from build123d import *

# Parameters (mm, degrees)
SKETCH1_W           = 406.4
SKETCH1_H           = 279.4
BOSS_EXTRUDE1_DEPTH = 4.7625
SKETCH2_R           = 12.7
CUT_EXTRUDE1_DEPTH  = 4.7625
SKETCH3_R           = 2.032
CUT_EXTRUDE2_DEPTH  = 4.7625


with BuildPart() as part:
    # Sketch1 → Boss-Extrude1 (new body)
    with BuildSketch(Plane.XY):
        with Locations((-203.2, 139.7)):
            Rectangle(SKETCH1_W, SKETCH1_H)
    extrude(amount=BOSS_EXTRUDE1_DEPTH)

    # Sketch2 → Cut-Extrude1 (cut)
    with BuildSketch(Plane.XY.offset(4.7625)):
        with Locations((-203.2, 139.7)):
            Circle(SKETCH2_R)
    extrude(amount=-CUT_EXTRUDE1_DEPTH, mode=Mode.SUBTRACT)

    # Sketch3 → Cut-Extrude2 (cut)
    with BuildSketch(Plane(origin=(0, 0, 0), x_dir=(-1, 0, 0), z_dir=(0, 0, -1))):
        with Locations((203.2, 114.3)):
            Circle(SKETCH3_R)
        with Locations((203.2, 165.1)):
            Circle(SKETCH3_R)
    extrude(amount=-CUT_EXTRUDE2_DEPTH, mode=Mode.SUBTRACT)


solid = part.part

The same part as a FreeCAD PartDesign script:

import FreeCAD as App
import Part
import Sketcher

V = App.Vector
Q = App.Units.Quantity

doc = App.newDocument("Part")
params = doc.addObject("Spreadsheet::Sheet", "Params")
for row, (alias, value) in enumerate([
    ("sketch1_width", "16 in"),
    ("sketch1_height", "11 in"),
    ("pad1_length", "0.1875 in"),
    ("sketch2_diameter", "1 in"),
    ("pocket1_length", "0.1875 in"),
    ("sketch3_diameter", "0.16 in"),
    ("pocket2_length", "0.1875 in"),
], start=1):
    params.set(f"A{row}", alias)
    params.set(f"B{row}", "=" + value)
    params.setAlias(f"B{row}", alias)

body = doc.addObject("PartDesign::Body", "Body")

sketch1 = doc.addObject("Sketcher::SketchObject", "Sketch")
body.addObject(sketch1)
sketch1.AttachmentSupport = (doc.XY_Plane, [""])
sketch1.MapMode = "FlatFace"
sketch1.addGeometry(Part.LineSegment(V(-406, 279, 0), V(-406, 0, 0)), False)
sketch1.addGeometry(Part.LineSegment(V(-406, 0, 0), V(0, 0, 0)), False)
sketch1.addGeometry(Part.LineSegment(V(0, 0, 0), V(0, 279, 0)), False)
sketch1.addGeometry(Part.LineSegment(V(0, 279, 0), V(-406, 279, 0)), False)
sketch1.addConstraint(Sketcher.Constraint("Coincident", 0, 2, 1, 1))
sketch1.addConstraint(Sketcher.Constraint("Coincident", 1, 2, 2, 1))
sketch1.addConstraint(Sketcher.Constraint("Coincident", 2, 2, 3, 1))
sketch1.addConstraint(Sketcher.Constraint("Coincident", 3, 2, 0, 1))
sketch1.addConstraint(Sketcher.Constraint("Vertical", 0))
sketch1.addConstraint(Sketcher.Constraint("Horizontal", 1))
sketch1.addConstraint(Sketcher.Constraint("Vertical", 2))
sketch1.addConstraint(Sketcher.Constraint("Horizontal", 3))
sketch1.addConstraint(Sketcher.Constraint("Coincident", 1, 2, -1, 1))
sketch1.addConstraint(Sketcher.Constraint("DistanceX", 1, 1, 1, 2, Q("16 in")))
sketch1.addConstraint(Sketcher.Constraint("DistanceY", 0, 2, 0, 1, Q("11 in")))
sketch1.setExpression("Constraints[9]", "Params.sketch1_width")
sketch1.setExpression("Constraints[10]", "Params.sketch1_height")
pad1 = doc.addObject("PartDesign::Pad", "Pad")
body.addObject(pad1)
pad1.Profile = sketch1
pad1.setExpression("Length", "Params.pad1_length")

sketch2 = doc.addObject("Sketcher::SketchObject", "Sketch001")
body.addObject(sketch2)
sketch2.AttachmentSupport = (doc.XY_Plane, [""])
sketch2.MapMode = "FlatFace"
sketch2.AttachmentOffset = App.Placement(V(0, 0, 0.1875 * 25.4), App.Rotation())
sketch2.addGeometry(Part.Circle(V(-203, 140, 0), V(0, 0, 1), 13), False)
sketch2.addConstraint(Sketcher.Constraint("Diameter", 0, Q("1 in")))
sketch2.addConstraint(Sketcher.Constraint("DistanceX", 0, 3, -1, 1, Q("8 in")))
sketch2.addConstraint(Sketcher.Constraint("DistanceY", -1, 1, 0, 3, Q("5.5 in")))
sketch2.setExpression("Constraints[0]", "Params.sketch2_diameter")
pocket1 = doc.addObject("PartDesign::Pocket", "Pocket")
body.addObject(pocket1)
pocket1.Profile = sketch2
pocket1.setExpression("Length", "Params.pocket1_length")

sketch3 = doc.addObject("Sketcher::SketchObject", "Sketch002")
body.addObject(sketch3)
sketch3.AttachmentSupport = (doc.XY_Plane, [""])
sketch3.MapMode = "FlatFace"
sketch3.addGeometry(Part.Circle(V(-203.2, 114.3, 0), V(0, 0, 1), 2), False)
sketch3.addGeometry(Part.Circle(V(-203.2, 165.1, 0), V(0, 0, 1), 2), False)
sketch3.addConstraint(Sketcher.Constraint("Equal", 0, 1))
sketch3.addConstraint(Sketcher.Constraint("Vertical", 0, 3, 1, 3))
sketch3.addConstraint(Sketcher.Constraint("Diameter", 0, Q("0.16 in")))
sketch3.addConstraint(Sketcher.Constraint("DistanceX", 0, 3, -1, 1, Q("8 in")))
sketch3.addConstraint(Sketcher.Constraint("DistanceY", 0, 3, 1, 3, Q("2 in")))
sketch3.addConstraint(Sketcher.Constraint("DistanceY", -1, 1, 0, 3, Q("4.5 in")))
sketch3.setExpression("Constraints[2]", "Params.sketch3_diameter")
pocket2 = doc.addObject("PartDesign::Pocket", "Pocket001")
body.addObject(pocket2)
pocket2.Profile = sketch3
pocket2.setExpression("Length", "Params.pocket2_length")
pocket2.Reversed = True

doc.recompute()
